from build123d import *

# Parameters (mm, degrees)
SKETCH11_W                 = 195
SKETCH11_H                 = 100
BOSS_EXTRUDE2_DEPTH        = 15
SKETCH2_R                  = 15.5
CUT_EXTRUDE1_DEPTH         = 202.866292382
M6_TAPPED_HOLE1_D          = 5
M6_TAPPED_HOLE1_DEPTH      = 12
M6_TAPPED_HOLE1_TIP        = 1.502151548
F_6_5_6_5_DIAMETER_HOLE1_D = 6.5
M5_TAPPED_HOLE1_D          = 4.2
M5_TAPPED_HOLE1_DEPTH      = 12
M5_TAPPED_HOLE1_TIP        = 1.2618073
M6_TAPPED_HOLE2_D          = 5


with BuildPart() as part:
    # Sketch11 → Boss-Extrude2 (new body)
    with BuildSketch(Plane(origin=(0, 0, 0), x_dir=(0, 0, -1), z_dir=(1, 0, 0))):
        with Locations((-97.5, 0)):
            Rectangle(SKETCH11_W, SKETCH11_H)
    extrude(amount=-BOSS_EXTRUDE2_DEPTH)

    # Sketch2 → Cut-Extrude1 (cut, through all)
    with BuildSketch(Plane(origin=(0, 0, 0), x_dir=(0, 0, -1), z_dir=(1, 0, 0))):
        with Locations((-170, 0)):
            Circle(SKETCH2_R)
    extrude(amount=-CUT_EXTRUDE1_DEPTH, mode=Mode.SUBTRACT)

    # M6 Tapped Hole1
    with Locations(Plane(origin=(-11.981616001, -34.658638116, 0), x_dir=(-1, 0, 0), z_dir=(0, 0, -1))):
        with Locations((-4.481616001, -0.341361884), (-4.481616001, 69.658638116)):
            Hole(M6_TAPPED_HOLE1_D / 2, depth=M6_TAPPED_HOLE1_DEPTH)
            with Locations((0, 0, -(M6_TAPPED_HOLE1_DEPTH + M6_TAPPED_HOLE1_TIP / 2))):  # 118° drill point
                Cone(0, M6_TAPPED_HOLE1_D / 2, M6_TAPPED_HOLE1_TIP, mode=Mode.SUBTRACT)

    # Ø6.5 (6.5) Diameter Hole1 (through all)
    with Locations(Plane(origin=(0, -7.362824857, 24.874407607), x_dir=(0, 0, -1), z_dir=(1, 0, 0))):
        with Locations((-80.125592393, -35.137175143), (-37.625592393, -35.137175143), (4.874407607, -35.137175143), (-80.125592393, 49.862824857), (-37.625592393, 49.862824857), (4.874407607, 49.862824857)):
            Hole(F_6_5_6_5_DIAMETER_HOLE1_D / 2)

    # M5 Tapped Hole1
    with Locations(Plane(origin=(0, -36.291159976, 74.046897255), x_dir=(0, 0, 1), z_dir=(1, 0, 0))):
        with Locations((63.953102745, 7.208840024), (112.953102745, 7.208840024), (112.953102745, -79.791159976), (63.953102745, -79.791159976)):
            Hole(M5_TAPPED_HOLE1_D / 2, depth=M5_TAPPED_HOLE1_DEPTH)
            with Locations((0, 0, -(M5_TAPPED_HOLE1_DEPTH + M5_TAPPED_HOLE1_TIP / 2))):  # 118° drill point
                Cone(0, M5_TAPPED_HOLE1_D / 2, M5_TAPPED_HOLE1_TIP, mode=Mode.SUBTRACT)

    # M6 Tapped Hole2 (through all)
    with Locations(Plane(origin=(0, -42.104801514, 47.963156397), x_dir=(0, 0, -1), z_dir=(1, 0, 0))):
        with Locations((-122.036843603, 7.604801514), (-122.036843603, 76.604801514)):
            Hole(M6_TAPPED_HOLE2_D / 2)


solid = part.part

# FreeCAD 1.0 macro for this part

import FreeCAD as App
import Part
import Sketcher


def add_polygon(sketch, points):
    """Adds a closed chain of lines whose ends are joined by coincident constraints."""
    first, n = sketch.GeometryCount, len(points)
    for a, b in zip(points, points[1:] + points[:1]):
        sketch.addGeometry(Part.LineSegment(App.Vector(*a, 0), App.Vector(*b, 0)), False)
    for i in range(n):
        sketch.addConstraint(Sketcher.Constraint("Coincident", first + i, 2, first + (i + 1) % n, 1))

doc = App.newDocument("Part")
params = doc.addObject("Spreadsheet::Sheet", "Params")
for row, (alias, value) in enumerate([
    ("sketch1_width", "100 mm"),
    ("sketch1_height", "195 mm"),
    ("pad1_length", "15 mm"),
    ("sketch2_diameter", "31 mm"),
    ("sketch3_diameter", "5 mm"),
    ("hole_diameter", "5 mm"),
    ("hole_depth", "12 mm"),
    ("sketch4_diameter", "6.5 mm"),
    ("hole2_diameter", "6.5 mm"),
    ("sketch5_diameter", "4.2 mm"),
    ("hole3_diameter", "4.2 mm"),
    ("hole3_depth", "12 mm"),
    ("sketch6_diameter", "5 mm"),
    ("hole4_diameter", "5 mm"),
], start=1):
    params.set(f"A{row}", alias)
    params.set(f"B{row}", "=" + value)
    params.setAlias(f"B{row}", alias)

body = doc.addObject("PartDesign::Body", "Body")

# Sketch on YZ plane
sketch1 = body.newObject("Sketcher::SketchObject", "Sketch")
sketch1.AttachmentSupport = (doc.getObject("YZ_Plane"), [""])
sketch1.MapMode = "FlatFace"
add_polygon(sketch1, [(50, 195), (-50, 195), (-50, 0), (50, 0)])  # lines 0-3
sketch1.addConstraint([
    Sketcher.Constraint("Horizontal", 0),
    Sketcher.Constraint("Vertical", 1),
    Sketcher.Constraint("Horizontal", 2),
    Sketcher.Constraint("Vertical", 3),
    Sketcher.Constraint("Symmetric", 1, 2, 2, 2, -1, 1),
    Sketcher.Constraint("DistanceX", 0, 2, 0, 1, 100.0),
    Sketcher.Constraint("DistanceY", 1, 2, 1, 1, 195.0),
])
sketch1.setExpression("Constraints[9]", "Params.sketch1_width")
sketch1.setExpression("Constraints[10]", "Params.sketch1_height")
pad1 = body.newObject("PartDesign::Pad", "Pad")
pad1.Profile = sketch1
pad1.setExpression("Length", "Params.pad1_length")
pad1.Reversed = True

# Sketch on YZ plane
sketch2 = body.newObject("Sketcher::SketchObject", "Sketch001")
sketch2.AttachmentSupport = (doc.getObject("YZ_Plane"), [""])
sketch2.MapMode = "FlatFace"
sketch2.addGeometry(Part.Circle(App.Vector(0, 170, 0), App.Vector(0, 0, 1), 16), False)
sketch2.addConstraint([
    Sketcher.Constraint("PointOnObject", 0, 3, -2),
    Sketcher.Constraint("Diameter", 0, 31.0),
    Sketcher.Constraint("DistanceY", -1, 1, 0, 3, 170.0),
])
sketch2.setExpression("Constraints[1]", "Params.sketch2_diameter")
pocket1 = body.newObject("PartDesign::Pocket", "Pocket")
pocket1.Profile = sketch2
pocket1.Type = "ThroughAll"

# Sketch on XY plane
sketch3 = body.newObject("Sketcher::SketchObject", "Sketch002")
sketch3.AttachmentSupport = (doc.getObject("XY_Plane"), [""])
sketch3.MapMode = "FlatFace"
sketch3.addGeometry([
    Part.Circle(App.Vector(-7.5, -35, 0), App.Vector(0, 0, 1), 2.5),
    Part.Circle(App.Vector(-7.5, 35, 0), App.Vector(0, 0, 1), 2.5),
], False)
sketch3.addConstraint([
    Sketcher.Constraint("Equal", 0, 1),
    Sketcher.Constraint("Symmetric", 0, 3, 1, 3, -1),
    Sketcher.Constraint("Diameter", 0, 5.0),
    Sketcher.Constraint("DistanceY", 0, 3, -1, 1, 35.0),
    Sketcher.Constraint("DistanceX", 0, 3, -1, 1, 7.5),
])
sketch3.setExpression("Constraints[2]", "Params.sketch3_diameter")
doc.recompute()
hole = body.newObject("PartDesign::Hole", "Hole")
hole.Profile = sketch3
hole.ThreadType = "None"
hole.setExpression("Diameter", "Params.hole_diameter")
hole.DepthType = "Dimension"
hole.setExpression("Depth", "Params.hole_depth")
hole.DrillPoint = "Angled"
hole.DrillPointAngle = 118
hole.Reversed = True

# Sketch on YZ plane
sketch4 = body.newObject("Sketcher::SketchObject", "Sketch003")
sketch4.AttachmentSupport = (doc.getObject("YZ_Plane"), [""])
sketch4.MapMode = "FlatFace"
sketch4.addGeometry([
    Part.Circle(App.Vector(-42.5, 105, 0), App.Vector(0, 0, 1), 3.2),  # 0
    Part.Circle(App.Vector(-42.5, 62.5, 0), App.Vector(0, 0, 1), 3.2),  # 1
    Part.Circle(App.Vector(-42.5, 20, 0), App.Vector(0, 0, 1), 3.2),  # 2
    Part.Circle(App.Vector(42.5, 105, 0), App.Vector(0, 0, 1), 3.2),  # 3
    Part.Circle(App.Vector(42.5, 62.5, 0), App.Vector(0, 0, 1), 3.2),  # 4
    Part.Circle(App.Vector(42.5, 20, 0), App.Vector(0, 0, 1), 3.2),  # 5
], False)
sketch4.addConstraint([
    Sketcher.Constraint("Equal", 0, 1),
    Sketcher.Constraint("Equal", 1, 2),
    Sketcher.Constraint("Equal", 2, 3),
    Sketcher.Constraint("Equal", 3, 4),
    Sketcher.Constraint("Equal", 4, 5),
    Sketcher.Constraint("Symmetric", 0, 3, 3, 3, -2),
    Sketcher.Constraint("Symmetric", 1, 3, 4, 3, -2),
    Sketcher.Constraint("Symmetric", 2, 3, 5, 3, -2),
    Sketcher.Constraint("Vertical", 0, 3, 1, 3),
    Sketcher.Constraint("Vertical", 1, 3, 2, 3),
    Sketcher.Constraint("Diameter", 0, 6.5),
    Sketcher.Constraint("DistanceY", -1, 1, 0, 3, 105.0),
    Sketcher.Constraint("DistanceY", -1, 1, 2, 3, 20.0),
    Sketcher.Constraint("DistanceX", 0, 3, 3, 3, 85.0),
    Sketcher.Constraint("DistanceY", -1, 1, 1, 3, 62.5),
])
sketch4.setExpression("Constraints[10]", "Params.sketch4_diameter")
doc.recompute()
hole2 = body.newObject("PartDesign::Hole", "Hole001")
hole2.Profile = sketch4
hole2.ThreadType = "None"
hole2.setExpression("Diameter", "Params.hole2_diameter")
hole2.DepthType = "ThroughAll"

# Sketch on YZ plane
sketch5 = body.newObject("Sketcher::SketchObject", "Sketch004")
sketch5.AttachmentSupport = (doc.getObject("YZ_Plane"), [""])
sketch5.MapMode = "FlatFace"
sketch5.addGeometry([
    Part.Circle(App.Vector(-43.5, 138, 0), App.Vector(0, 0, 1), 2.1),
    Part.Circle(App.Vector(-43.5, 187, 0), App.Vector(0, 0, 1), 2.1),
    Part.Circle(App.Vector(43.5, 187, 0), App.Vector(0, 0, 1), 2.1),
    Part.Circle(App.Vector(43.5, 138, 0), App.Vector(0, 0, 1), 2.1),
], False)
sketch5.addConstraint([
    Sketcher.Constraint("Equal", 0, 1),
    Sketcher.Constraint("Equal", 1, 2),
    Sketcher.Constraint("Equal", 2, 3),
    Sketcher.Constraint("Symmetric", 1, 3, 2, 3, -2),
    Sketcher.Constraint("Symmetric", 0, 3, 3, 3, -2),
    Sketcher.Constraint("Vertical", 0, 3, 1, 3),
    Sketcher.Constraint("Diameter", 0, 4.2),
    Sketcher.Constraint("DistanceY", -1, 1, 0, 3, 138.0),
    Sketcher.Constraint("DistanceY", -1, 1, 1, 3, 187.0),
    Sketcher.Constraint("DistanceX", 1, 3, 2, 3, 87.0),
])
sketch5.setExpression("Constraints[6]", "Params.sketch5_diameter")
doc.recompute()
hole3 = body.newObject("PartDesign::Hole", "Hole002")
hole3.Profile = sketch5
hole3.ThreadType = "None"
hole3.setExpression("Diameter", "Params.hole3_diameter")
hole3.DepthType = "Dimension"
hole3.setExpression("Depth", "Params.hole3_depth")
hole3.DrillPoint = "Angled"
hole3.DrillPointAngle = 118

# Sketch on YZ plane
sketch6 = body.newObject("Sketcher::SketchObject", "Sketch005")
sketch6.AttachmentSupport = (doc.getObject("YZ_Plane"), [""])
sketch6.MapMode = "FlatFace"
sketch6.addGeometry([
    Part.Circle(App.Vector(-34.5, 170, 0), App.Vector(0, 0, 1), 2.5),
    Part.Circle(App.Vector(34.5, 170, 0), App.Vector(0, 0, 1), 2.5),
], False)
sketch6.addConstraint([
    Sketcher.Constraint("Equal", 0, 1),
    Sketcher.Constraint("Symmetric", 0, 3, 1, 3, -2),
    Sketcher.Constraint("Diameter", 0, 5.0),
    Sketcher.Constraint("DistanceY", -1, 1, 0, 3, 170.0),
    Sketcher.Constraint("DistanceX", 0, 3, 1, 3, 69.0),
])
sketch6.setExpression("Constraints[2]", "Params.sketch6_diameter")
doc.recompute()
hole4 = body.newObject("PartDesign::Hole", "Hole003")
hole4.Profile = sketch6
hole4.ThreadType = "None"
hole4.setExpression("Diameter", "Params.hole4_diameter")
hole4.DepthType = "ThroughAll"

doc.recompute()
